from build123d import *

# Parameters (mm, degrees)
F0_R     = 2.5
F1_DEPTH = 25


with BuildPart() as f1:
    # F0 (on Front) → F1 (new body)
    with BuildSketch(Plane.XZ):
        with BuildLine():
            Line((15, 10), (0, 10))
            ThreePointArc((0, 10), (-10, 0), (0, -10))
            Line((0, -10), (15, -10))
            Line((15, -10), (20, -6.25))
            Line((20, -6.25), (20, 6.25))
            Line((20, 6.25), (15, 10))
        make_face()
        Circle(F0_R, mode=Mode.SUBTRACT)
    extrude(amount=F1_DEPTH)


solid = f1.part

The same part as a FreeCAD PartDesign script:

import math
import FreeCAD as App
import Part
import Sketcher
from FreeCAD import Vector
Q = App.Units.Quantity

doc = App.newDocument("Part")
body = doc.addObject("PartDesign::Body", "Body")

sketch1 = body.newObject("Sketcher::SketchObject", "Sketch")
sketch1.AttachmentSupport = (doc.getObject("XZ_Plane"), [""])
sketch1.MapMode = "FlatFace"
sketch1.addGeometry([
    Part.LineSegment(Vector(15, 10, 0), Vector(0, 10, 0)),
    Part.ArcOfCircle(Part.Circle(Vector(0, 0, 0), Vector(0, 0, 1), 10), math.radians(90), math.radians(270)),
    Part.LineSegment(Vector(0, -10, 0), Vector(15, -10, 0)),
    Part.LineSegment(Vector(15, -10, 0), Vector(20, -6.2, 0)),
    Part.LineSegment(Vector(20, -6.2, 0), Vector(20, 6.2, 0)),
    Part.LineSegment(Vector(20, 6.2, 0), Vector(15, 10, 0)),
    Part.Circle(Vector(0, 0, 0), Vector(0, 0, 1), 2.5),
], False)
sketch1.addConstraint([
    Sketcher.Constraint("Tangent", 0, 2, 1, 1),
    Sketcher.Constraint("Tangent", 1, 2, 2, 1),
    Sketcher.Constraint("Coincident", 2, 2, 3, 1),
    Sketcher.Constraint("Coincident", 3, 2, 4, 1),
    Sketcher.Constraint("Coincident", 4, 2, 5, 1),
    Sketcher.Constraint("Coincident", 5, 2, 0, 1),
    Sketcher.Constraint("Horizontal", 0),
    Sketcher.Constraint("Horizontal", 2),
    Sketcher.Constraint("Vertical", 4),
    Sketcher.Constraint("Coincident", 1, 3, -1, 1),
    Sketcher.Constraint("Coincident", 6, 3, -1, 1),
    Sketcher.Constraint("Vertical", 2, 2, 5, 2),
    Sketcher.Constraint("Equal", 3, 5),
    Sketcher.Constraint("Diameter", 6, Q("5 mm")),
    Sketcher.Constraint("Radius", 1, Q("10 mm")),
    Sketcher.Constraint("DistanceX", 0, 2, 0, 1, Q("15 mm")),
    Sketcher.Constraint("DistanceY", 4, 1, 4, 2, Q("12.5 mm")),
    Sketcher.Constraint("DistanceX", -1, 1, 3, 2, Q("20 mm")),
])
pad1 = body.newObject("PartDesign::Pad", "Pad")
pad1.Profile = sketch1
pad1.Length = 25

doc.recompute()
